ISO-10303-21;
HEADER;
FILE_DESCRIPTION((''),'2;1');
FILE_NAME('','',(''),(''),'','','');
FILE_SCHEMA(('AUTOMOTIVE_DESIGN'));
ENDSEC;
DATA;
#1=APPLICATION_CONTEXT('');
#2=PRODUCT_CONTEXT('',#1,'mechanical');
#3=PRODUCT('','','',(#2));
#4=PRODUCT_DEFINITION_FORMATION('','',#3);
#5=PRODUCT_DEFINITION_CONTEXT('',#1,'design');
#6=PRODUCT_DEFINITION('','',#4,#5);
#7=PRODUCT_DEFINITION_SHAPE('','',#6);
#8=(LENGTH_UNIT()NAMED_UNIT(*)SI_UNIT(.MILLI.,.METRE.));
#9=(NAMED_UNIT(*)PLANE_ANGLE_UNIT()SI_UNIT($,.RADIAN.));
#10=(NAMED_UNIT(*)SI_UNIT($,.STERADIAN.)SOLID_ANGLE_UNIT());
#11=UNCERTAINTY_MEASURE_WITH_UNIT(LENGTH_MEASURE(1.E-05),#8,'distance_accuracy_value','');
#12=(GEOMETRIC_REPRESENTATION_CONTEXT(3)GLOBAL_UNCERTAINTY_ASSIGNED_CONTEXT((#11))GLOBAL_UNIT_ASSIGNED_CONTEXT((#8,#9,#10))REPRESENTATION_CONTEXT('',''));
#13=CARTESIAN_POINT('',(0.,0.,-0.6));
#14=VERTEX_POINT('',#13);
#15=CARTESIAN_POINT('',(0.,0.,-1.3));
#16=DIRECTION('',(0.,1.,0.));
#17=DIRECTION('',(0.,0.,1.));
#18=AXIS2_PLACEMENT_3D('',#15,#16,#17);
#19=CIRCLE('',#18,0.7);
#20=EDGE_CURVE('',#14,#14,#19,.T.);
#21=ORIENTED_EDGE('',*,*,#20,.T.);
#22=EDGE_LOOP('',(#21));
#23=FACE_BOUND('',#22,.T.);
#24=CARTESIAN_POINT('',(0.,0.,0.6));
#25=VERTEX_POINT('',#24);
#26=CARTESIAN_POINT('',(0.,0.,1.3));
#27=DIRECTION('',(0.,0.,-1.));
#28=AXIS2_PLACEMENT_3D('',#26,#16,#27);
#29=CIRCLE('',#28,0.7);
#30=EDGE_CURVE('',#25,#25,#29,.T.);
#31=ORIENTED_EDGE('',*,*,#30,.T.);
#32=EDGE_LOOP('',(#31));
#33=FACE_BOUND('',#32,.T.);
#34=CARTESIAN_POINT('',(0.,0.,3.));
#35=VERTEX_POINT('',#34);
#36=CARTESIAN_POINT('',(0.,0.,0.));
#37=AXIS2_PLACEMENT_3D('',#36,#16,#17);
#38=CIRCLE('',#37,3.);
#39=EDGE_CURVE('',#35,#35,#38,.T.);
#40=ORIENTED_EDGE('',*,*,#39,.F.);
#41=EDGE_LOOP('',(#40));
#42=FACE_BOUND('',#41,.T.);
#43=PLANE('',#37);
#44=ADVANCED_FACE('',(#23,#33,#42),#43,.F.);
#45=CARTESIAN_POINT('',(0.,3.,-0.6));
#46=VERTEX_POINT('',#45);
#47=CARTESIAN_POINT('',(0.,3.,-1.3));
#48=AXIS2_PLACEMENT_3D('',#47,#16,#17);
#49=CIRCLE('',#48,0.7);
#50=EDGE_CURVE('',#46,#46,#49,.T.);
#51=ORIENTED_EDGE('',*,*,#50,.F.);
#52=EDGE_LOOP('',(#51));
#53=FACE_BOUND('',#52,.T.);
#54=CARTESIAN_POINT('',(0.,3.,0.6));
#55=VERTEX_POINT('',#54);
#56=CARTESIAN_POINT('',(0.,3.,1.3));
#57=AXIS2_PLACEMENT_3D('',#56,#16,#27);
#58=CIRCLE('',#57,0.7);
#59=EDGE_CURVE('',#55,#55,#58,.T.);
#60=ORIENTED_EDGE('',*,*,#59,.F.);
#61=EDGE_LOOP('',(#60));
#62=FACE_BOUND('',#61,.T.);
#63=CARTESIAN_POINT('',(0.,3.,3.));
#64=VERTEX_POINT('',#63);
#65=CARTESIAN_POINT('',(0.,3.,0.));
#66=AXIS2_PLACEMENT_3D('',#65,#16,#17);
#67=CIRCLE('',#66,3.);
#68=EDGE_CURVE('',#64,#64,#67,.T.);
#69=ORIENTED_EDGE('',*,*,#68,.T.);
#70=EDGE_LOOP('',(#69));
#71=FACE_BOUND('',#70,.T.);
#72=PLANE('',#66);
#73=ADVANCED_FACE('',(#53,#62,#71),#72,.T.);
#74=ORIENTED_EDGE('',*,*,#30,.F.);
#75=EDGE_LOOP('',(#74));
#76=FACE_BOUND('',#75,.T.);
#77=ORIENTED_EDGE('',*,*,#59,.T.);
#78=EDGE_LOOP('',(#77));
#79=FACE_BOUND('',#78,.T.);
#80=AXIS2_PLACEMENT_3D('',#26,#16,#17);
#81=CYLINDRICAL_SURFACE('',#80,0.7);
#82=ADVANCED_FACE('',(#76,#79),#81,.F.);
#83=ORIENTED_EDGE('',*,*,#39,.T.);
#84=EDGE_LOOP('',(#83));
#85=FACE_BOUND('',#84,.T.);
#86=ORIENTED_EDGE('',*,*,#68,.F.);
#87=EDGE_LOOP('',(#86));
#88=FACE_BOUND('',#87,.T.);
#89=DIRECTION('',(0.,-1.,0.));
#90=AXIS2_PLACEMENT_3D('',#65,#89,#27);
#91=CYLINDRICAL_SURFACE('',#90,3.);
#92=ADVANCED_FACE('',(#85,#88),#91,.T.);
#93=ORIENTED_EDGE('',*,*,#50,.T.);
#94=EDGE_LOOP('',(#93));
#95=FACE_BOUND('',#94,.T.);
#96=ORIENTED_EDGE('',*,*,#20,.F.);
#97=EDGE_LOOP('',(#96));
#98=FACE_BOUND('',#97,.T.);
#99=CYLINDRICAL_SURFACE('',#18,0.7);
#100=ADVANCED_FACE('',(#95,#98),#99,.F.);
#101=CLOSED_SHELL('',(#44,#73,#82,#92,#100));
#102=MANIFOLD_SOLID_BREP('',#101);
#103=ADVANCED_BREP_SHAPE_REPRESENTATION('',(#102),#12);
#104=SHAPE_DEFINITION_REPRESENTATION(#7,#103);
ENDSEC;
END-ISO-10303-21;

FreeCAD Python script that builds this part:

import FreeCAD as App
import Part
import Sketcher

V = App.Vector
Q = App.Units.Quantity

doc = App.newDocument("Part")
params = doc.addObject("Spreadsheet::Sheet", "Params")
for row, (alias, value) in enumerate([
    ("sketch1_diameter", "6 mm"),
    ("pad1_length", "3 mm"),
    ("sketch2_diameter", "1.4 mm"),
    ("pocket1_length", "3 mm"),
], start=1):
    params.set(f"A{row}", alias)
    params.set(f"B{row}", "=" + value)
    params.setAlias(f"B{row}", alias)

body = doc.addObject("PartDesign::Body", "Body")

sketch1 = body.newObject("Sketcher::SketchObject", "Sketch")
sketch1.AttachmentSupport = (doc.getObject("XZ_Plane"), [""])
sketch1.MapMode = "FlatFace"
sketch1.addGeometry(Part.Circle(V(0, 0, 0), V(0, 0, 1), 3), False)
sketch1.addConstraint([
    Sketcher.Constraint("Coincident", 0, 3, -1, 1),
    Sketcher.Constraint("Diameter", 0, Q("6 mm")),
])
sketch1.setExpression("Constraints[1]", "Params.sketch1_diameter")
pad1 = body.newObject("PartDesign::Pad", "Pad")
pad1.Profile = sketch1
pad1.setExpression("Length", "Params.pad1_length")
pad1.Reversed = True

sketch2 = body.newObject("Sketcher::SketchObject", "Sketch001")
sketch2.AttachmentSupport = (doc.getObject("XZ_Plane"), [""])
sketch2.MapMode = "FlatFace"
sketch2.AttachmentOffset = App.Placement(V(0, 0, -3), App.Rotation())
sketch2.addGeometry([
    Part.Circle(V(0, -1.3, 0), V(0, 0, 1), 0.7),
    Part.Circle(V(0, 1.3, 0), V(0, 0, 1), 0.7),
], False)
sketch2.addConstraint([
    Sketcher.Constraint("Equal", 0, 1),
    Sketcher.Constraint("Symmetric", 0, 3, 1, 3, -1, 1),
    Sketcher.Constraint("PointOnObject", 0, 3, -2),
    Sketcher.Constraint("Diameter", 0, Q("1.4 mm")),
    Sketcher.Constraint("DistanceY", 0, 3, -1, 1, Q("1.3 mm")),
])
sketch2.setExpression("Constraints[3]", "Params.sketch2_diameter")
pocket1 = body.newObject("PartDesign::Pocket", "Pocket")
pocket1.Profile = sketch2
pocket1.setExpression("Length", "Params.pocket1_length")
pocket1.Reversed = True

doc.recompute()
